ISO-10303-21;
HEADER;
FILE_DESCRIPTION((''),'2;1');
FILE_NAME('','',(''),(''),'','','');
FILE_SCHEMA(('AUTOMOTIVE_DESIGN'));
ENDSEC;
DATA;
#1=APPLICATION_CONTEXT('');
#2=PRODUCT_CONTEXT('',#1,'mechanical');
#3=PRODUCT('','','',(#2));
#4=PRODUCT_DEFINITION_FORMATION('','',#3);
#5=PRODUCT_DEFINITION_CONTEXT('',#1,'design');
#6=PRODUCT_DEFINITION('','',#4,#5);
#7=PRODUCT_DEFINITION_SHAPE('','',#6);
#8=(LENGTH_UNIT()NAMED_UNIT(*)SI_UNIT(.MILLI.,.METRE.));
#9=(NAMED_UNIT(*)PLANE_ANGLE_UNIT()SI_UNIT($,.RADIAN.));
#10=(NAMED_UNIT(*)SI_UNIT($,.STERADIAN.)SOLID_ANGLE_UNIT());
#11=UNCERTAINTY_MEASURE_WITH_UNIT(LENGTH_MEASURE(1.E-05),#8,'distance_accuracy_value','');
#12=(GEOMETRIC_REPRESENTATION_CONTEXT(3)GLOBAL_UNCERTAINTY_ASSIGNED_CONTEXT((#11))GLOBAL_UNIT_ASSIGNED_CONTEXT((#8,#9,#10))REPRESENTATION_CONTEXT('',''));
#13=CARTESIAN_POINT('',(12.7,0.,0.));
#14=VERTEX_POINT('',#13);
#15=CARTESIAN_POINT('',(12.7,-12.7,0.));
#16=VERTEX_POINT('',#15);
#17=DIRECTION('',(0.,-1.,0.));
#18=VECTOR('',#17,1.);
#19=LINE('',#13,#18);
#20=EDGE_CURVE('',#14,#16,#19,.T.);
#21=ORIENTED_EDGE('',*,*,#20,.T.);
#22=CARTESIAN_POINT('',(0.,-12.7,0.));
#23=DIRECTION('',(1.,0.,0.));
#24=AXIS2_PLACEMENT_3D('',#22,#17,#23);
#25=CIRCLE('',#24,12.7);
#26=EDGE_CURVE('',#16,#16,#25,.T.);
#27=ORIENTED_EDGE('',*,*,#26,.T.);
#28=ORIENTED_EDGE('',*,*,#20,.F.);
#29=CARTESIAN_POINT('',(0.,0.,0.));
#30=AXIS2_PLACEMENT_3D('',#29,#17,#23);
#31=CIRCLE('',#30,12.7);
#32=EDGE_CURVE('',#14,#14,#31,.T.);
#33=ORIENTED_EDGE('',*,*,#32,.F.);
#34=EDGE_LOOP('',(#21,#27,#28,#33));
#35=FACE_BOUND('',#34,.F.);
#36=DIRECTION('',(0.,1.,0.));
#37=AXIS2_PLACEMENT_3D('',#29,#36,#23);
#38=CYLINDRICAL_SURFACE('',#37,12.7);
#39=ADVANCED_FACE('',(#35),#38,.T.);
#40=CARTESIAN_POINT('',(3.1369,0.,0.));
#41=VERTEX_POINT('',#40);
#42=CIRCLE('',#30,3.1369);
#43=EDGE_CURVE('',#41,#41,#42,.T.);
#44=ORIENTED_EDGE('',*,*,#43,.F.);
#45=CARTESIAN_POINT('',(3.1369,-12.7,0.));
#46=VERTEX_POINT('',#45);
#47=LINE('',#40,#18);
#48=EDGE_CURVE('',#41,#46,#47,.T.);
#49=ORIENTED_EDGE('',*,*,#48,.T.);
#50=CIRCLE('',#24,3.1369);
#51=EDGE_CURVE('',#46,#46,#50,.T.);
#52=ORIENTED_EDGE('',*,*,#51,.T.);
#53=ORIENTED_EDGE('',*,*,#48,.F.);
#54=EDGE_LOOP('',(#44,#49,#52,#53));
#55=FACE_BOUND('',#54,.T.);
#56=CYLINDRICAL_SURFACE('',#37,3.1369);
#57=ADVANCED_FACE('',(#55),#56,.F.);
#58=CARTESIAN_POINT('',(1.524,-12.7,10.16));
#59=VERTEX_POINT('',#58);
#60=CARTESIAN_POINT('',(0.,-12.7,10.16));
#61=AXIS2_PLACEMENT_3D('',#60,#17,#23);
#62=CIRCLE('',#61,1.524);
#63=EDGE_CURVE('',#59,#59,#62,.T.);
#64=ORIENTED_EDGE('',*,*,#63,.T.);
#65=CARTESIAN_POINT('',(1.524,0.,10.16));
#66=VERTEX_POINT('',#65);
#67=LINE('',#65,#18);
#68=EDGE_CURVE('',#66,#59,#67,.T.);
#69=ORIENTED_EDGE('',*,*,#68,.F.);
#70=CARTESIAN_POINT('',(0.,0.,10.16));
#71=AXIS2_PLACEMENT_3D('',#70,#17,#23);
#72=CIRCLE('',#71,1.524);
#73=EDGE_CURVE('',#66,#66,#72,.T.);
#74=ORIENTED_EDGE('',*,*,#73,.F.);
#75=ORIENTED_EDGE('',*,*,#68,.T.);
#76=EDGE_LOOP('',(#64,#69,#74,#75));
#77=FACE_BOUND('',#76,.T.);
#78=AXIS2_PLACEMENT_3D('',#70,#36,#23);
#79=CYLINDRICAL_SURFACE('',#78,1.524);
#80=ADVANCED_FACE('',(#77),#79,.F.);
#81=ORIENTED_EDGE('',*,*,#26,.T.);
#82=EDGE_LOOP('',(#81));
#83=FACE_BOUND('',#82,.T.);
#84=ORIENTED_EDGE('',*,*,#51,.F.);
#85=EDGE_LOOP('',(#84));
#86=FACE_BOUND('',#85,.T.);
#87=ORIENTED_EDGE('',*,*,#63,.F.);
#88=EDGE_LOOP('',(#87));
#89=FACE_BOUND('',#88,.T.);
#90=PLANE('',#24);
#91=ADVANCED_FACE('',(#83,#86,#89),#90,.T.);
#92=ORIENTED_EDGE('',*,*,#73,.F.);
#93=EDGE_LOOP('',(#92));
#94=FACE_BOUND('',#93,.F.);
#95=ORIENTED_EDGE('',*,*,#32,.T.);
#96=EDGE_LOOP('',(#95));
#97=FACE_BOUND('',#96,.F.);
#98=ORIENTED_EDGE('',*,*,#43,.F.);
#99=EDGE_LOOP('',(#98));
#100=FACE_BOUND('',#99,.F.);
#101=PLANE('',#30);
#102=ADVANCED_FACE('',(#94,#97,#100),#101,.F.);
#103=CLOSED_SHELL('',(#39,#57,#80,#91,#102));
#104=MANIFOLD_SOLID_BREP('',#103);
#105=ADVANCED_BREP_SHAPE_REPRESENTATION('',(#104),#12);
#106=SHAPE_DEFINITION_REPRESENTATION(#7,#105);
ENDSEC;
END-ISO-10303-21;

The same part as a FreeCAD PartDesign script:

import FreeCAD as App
import Part
import Sketcher
from FreeCAD import Vector
Q = App.Units.Quantity

doc = App.newDocument("Part")
params = doc.addObject("Spreadsheet::Sheet", "Params")
for row, (alias, value) in enumerate([
    ("sketch1_diameter", "1 in"),
    ("sketch1_diameter2", "0.12 in"),
    ("sketch1_diameter3", "0.247 in"),
    ("pad1_length", "0.5 in"),
], start=1):
    params.set(f"A{row}", alias)
    params.set(f"B{row}", "=" + value)
    params.setAlias(f"B{row}", alias)

body = doc.addObject("PartDesign::Body", "Body")

sketch1 = doc.addObject("Sketcher::SketchObject", "Sketch")
body.addObject(sketch1)
sketch1.AttachmentSupport = (doc.XZ_Plane, [""])
sketch1.MapMode = "FlatFace"
sketch1.addGeometry([
    Part.Circle(Vector(0, 0, 0), Vector(0, 0, 1), 12.7),
    Part.Circle(Vector(0, 0, 0), Vector(0, 0, 1), 3.1),
    Part.Circle(Vector(0, 10.2, 0), Vector(0, 0, 1), 1.5),
], False)
sketch1.addConstraint([
    Sketcher.Constraint("Coincident", 0, 3, -1, 1),
    Sketcher.Constraint("Coincident", 1, 3, -1, 1),
    Sketcher.Constraint("PointOnObject", 2, 3, -2),
    Sketcher.Constraint("Diameter", 0, Q("1 in")),
    Sketcher.Constraint("Diameter", 2, Q("0.12 in")),
    Sketcher.Constraint("Diameter", 1, Q("0.247 in")),
    Sketcher.Constraint("DistanceY", -1, 1, 2, 3, Q("0.4 in")),
])
sketch1.setExpression("Constraints[3]", "Params.sketch1_diameter")
sketch1.setExpression("Constraints[4]", "Params.sketch1_diameter2")
sketch1.setExpression("Constraints[5]", "Params.sketch1_diameter3")
pad1 = doc.addObject("PartDesign::Pad", "Pad")
body.addObject(pad1)
pad1.Profile = sketch1
pad1.setExpression("Length", "Params.pad1_length")

doc.recompute()
